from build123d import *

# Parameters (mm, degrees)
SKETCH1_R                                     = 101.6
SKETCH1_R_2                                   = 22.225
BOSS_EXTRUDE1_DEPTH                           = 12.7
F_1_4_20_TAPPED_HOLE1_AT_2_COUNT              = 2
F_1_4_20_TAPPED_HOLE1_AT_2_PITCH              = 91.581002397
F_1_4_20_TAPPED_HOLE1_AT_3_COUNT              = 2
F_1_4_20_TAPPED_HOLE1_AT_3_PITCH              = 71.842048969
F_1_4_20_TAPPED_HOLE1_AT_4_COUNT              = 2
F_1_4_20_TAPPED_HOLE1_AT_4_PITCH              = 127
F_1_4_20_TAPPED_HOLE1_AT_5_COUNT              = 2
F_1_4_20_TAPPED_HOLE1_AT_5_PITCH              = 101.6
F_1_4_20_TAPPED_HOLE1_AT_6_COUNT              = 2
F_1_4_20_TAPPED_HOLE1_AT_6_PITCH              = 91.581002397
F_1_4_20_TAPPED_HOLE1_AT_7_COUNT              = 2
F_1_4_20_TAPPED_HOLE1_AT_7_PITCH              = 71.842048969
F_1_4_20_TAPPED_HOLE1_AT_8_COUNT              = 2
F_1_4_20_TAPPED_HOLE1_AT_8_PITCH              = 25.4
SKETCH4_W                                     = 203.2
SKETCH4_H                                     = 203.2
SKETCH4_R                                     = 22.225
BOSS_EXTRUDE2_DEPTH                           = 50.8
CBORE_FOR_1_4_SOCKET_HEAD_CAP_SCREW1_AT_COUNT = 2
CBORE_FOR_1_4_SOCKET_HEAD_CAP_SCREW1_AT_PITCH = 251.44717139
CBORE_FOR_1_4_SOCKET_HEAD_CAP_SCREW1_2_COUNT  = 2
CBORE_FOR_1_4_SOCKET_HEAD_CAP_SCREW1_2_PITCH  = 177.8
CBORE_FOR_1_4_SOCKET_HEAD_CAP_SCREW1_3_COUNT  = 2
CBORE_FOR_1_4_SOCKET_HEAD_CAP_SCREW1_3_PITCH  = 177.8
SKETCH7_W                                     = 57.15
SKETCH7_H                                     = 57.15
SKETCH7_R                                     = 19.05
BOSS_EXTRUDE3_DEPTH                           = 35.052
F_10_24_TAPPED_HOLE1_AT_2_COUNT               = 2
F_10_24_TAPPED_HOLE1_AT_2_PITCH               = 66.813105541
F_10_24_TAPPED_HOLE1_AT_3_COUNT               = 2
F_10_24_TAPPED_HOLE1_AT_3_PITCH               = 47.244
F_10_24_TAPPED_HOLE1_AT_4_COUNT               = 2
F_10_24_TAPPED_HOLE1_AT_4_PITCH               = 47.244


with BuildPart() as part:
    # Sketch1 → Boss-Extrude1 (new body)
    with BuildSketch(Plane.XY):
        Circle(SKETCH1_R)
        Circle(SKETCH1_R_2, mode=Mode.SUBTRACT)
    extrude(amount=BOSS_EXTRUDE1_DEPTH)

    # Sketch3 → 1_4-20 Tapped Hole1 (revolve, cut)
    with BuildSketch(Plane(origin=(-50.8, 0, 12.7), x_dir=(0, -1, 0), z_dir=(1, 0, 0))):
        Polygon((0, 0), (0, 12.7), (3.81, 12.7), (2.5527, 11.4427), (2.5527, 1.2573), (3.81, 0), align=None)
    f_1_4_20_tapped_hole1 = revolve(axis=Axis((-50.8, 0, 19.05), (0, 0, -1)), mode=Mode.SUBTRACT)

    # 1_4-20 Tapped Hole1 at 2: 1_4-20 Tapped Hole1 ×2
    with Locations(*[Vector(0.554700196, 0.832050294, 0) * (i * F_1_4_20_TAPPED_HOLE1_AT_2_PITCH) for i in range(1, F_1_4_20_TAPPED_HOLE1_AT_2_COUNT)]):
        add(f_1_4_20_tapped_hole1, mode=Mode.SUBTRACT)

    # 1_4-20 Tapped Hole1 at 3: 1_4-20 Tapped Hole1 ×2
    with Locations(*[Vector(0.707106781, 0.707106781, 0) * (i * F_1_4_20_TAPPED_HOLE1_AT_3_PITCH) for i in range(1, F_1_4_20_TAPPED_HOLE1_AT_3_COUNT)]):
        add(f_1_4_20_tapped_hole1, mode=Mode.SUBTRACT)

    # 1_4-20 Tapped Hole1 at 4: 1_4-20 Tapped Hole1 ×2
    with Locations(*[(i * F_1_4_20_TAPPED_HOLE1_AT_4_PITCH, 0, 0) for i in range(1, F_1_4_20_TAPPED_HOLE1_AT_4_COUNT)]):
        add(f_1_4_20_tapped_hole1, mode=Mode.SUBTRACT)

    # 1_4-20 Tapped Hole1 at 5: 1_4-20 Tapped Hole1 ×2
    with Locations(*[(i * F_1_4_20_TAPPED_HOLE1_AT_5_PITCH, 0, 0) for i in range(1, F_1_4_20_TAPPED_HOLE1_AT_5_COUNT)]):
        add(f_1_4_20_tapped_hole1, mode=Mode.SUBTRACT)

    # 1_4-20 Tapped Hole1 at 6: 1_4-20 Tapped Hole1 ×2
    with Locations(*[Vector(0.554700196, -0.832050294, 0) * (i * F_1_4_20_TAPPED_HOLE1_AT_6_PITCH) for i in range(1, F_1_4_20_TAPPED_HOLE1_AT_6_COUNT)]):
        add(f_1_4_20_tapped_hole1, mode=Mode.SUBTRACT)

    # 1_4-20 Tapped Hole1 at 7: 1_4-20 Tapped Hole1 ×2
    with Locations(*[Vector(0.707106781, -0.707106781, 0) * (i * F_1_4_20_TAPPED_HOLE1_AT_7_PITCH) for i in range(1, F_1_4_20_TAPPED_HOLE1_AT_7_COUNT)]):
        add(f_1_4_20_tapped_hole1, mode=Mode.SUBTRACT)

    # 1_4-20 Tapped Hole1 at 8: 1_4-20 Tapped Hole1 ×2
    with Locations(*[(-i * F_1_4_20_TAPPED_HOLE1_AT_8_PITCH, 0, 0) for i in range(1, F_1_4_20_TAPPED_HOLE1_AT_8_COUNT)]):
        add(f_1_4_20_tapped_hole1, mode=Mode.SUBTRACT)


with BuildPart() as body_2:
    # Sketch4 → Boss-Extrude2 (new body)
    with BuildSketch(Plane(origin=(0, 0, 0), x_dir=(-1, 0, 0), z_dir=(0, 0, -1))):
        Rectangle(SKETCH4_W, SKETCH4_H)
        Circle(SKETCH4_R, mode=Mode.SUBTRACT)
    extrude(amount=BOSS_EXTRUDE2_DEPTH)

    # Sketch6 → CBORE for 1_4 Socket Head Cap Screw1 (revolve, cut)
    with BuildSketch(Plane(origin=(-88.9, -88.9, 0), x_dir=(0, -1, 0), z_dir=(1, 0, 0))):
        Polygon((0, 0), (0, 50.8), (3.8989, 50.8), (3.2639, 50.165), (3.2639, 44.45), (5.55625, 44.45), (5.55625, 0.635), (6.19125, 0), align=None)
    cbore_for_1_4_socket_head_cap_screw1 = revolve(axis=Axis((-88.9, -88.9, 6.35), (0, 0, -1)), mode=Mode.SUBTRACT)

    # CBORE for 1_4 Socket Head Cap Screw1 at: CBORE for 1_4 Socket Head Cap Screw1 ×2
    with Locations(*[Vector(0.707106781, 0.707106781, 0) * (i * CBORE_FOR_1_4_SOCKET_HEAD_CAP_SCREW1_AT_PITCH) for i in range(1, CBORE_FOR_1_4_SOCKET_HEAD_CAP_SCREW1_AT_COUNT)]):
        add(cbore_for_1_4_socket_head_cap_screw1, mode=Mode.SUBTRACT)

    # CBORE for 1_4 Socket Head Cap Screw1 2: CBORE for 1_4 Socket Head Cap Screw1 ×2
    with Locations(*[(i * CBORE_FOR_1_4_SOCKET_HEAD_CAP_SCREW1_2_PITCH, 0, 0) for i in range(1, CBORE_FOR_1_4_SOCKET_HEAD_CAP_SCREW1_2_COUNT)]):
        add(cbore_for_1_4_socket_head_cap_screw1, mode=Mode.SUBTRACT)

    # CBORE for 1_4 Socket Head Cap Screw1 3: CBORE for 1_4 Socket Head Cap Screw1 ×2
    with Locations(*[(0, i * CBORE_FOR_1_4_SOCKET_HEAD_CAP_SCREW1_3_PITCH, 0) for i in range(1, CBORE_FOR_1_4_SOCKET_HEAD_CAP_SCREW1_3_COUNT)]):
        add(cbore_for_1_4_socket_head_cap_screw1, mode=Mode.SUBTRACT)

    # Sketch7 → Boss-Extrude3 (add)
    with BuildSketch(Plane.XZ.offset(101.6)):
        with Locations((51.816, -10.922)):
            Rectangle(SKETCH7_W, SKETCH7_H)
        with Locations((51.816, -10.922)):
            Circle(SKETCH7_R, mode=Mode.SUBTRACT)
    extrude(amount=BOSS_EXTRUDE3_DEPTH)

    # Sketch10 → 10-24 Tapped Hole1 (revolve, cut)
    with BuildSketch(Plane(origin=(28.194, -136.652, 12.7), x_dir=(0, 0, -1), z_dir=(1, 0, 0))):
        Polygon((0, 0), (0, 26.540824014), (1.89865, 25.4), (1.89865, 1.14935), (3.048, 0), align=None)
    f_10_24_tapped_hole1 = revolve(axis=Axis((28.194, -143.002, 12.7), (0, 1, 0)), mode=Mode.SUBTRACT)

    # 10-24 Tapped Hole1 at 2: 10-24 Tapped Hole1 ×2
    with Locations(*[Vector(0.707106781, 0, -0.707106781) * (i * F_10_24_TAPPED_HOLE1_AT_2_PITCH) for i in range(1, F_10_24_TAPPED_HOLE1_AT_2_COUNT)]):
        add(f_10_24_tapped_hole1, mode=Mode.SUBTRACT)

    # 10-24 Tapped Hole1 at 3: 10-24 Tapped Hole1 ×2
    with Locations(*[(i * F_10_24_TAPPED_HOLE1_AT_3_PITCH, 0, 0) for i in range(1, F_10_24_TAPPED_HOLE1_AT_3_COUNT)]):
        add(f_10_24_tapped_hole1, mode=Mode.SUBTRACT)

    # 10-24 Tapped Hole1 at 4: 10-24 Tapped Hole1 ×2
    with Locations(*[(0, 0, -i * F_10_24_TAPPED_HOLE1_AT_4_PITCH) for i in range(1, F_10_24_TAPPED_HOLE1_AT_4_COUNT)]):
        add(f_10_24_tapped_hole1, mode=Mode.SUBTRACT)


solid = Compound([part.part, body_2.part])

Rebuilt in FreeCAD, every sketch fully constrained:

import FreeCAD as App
import Part
import Sketcher

V = App.Vector
Q = App.Units.Quantity


def add_polygon(sketch, points):
    """Adds a closed chain of lines whose ends are joined by coincident constraints."""
    first, n = sketch.GeometryCount, len(points)
    for a, b in zip(points, points[1:] + points[:1]):
        sketch.addGeometry(Part.LineSegment(App.Vector(*a, 0), App.Vector(*b, 0)), False)
    for i in range(n):
        sketch.addConstraint(Sketcher.Constraint("Coincident", first + i, 2, first + (i + 1) % n, 1))

doc = App.newDocument("Part")
body = doc.addObject("PartDesign::Body", "Body")

# Sketch on XY plane
sketch1 = body.newObject("Sketcher::SketchObject", "Sketch")
sketch1.AttachmentSupport = (doc.getObject("XY_Plane"), [""])
sketch1.MapMode = "FlatFace"
sketch1.addGeometry([
    Part.Circle(V(0, 0, 0), V(0, 0, 1), 101.6),
    Part.Circle(V(0, 0, 0), V(0, 0, 1), 22.225),
], False)
sketch1.addConstraint([
    Sketcher.Constraint("Coincident", 0, 3, -1, 1),
    Sketcher.Constraint("Coincident", 1, 3, -1, 1),
    Sketcher.Constraint("Diameter", 0, Q("8 in")),
    Sketcher.Constraint("Diameter", 1, Q("1.75 in")),
])
pad1 = body.newObject("PartDesign::Pad", "Pad")
pad1.Profile = sketch1
pad1.Length = Q("0.5 in")

# Sketch on YZ plane
sketch2 = body.newObject("Sketcher::SketchObject", "Sketch001")
sketch2.AttachmentSupport = (doc.getObject("YZ_Plane"), [""])
sketch2.MapMode = "FlatFace"
sketch2.AttachmentOffset = App.Placement(V(0, 0, -2 * 25.4), App.Rotation())
add_polygon(sketch2, [(0, 0), (0, 12.7), (-3.81, 12.7), (-2.5527, 11.4427), (-2.5527, 1.2573), (-3.81, 0)])  # lines 0-5
sketch2.addConstraint([
    Sketcher.Constraint("Vertical", 0),
    Sketcher.Constraint("Horizontal", 1),
    Sketcher.Constraint("Vertical", 3),
    Sketcher.Constraint("Horizontal", 5),
    Sketcher.Constraint("Coincident", 5, 2, -1, 1),
    Sketcher.Constraint("Perpendicular", 2, 4),
    Sketcher.Constraint("Vertical", 1, 2, 4, 2),
    Sketcher.Constraint("Equal", 2, 4),
    Sketcher.Constraint("DistanceY", 0, 1, 0, 2, Q("0.5 in")),
    Sketcher.Constraint("DistanceX", 1, 2, 1, 1, Q("0.15 in")),
    Sketcher.Constraint("DistanceY", 3, 2, 3, 1, Q("0.401 in")),
])
groove = body.newObject("PartDesign::Groove", "Groove")
groove.Profile = sketch2
groove.ReferenceAxis = (sketch2, ["V_Axis"])
groove.Angle = 360
doc.recompute()

datumline = body.newObject("PartDesign::Line", "DatumLine")
datumline.Placement = App.Placement(V(0, 0, 0), App.Rotation(V(0, 0, 1), V(0.554700196, 0.832050294, 0)))
linearpattern = body.newObject("PartDesign::LinearPattern", "LinearPattern")
linearpattern.Originals = [groove]
linearpattern.Direction = (datumline, [""])
linearpattern.Mode = "offset"
linearpattern.Offset = 91.581002
linearpattern.Occurrences = 2
body.Tip = linearpattern
doc.recompute()

datumline2 = body.newObject("PartDesign::Line", "DatumLine001")
datumline2.Placement = App.Placement(V(0, 0, 0), App.Rotation(V(0, 0, 1), V(0.707106781, 0.707106781, 0)))
linearpattern2 = body.newObject("PartDesign::LinearPattern", "LinearPattern001")
linearpattern2.Originals = [groove]
linearpattern2.Direction = (datumline2, [""])
linearpattern2.Mode = "offset"
linearpattern2.Offset = 71.842049
linearpattern2.Occurrences = 2
body.Tip = linearpattern2
doc.recompute()

linearpattern3 = body.newObject("PartDesign::LinearPattern", "LinearPattern002")
linearpattern3.Originals = [groove]
linearpattern3.Direction = (doc.getObject("X_Axis"), [""])
linearpattern3.Mode = "offset"
linearpattern3.Offset = Q("5 in")
linearpattern3.Occurrences = 2
body.Tip = linearpattern3
doc.recompute()

linearpattern4 = body.newObject("PartDesign::LinearPattern", "LinearPattern003")
linearpattern4.Originals = [groove]
linearpattern4.Direction = (doc.getObject("X_Axis"), [""])
linearpattern4.Mode = "offset"
linearpattern4.Offset = Q("4 in")
linearpattern4.Occurrences = 2
body.Tip = linearpattern4
doc.recompute()

datumline3 = body.newObject("PartDesign::Line", "DatumLine002")
datumline3.Placement = App.Placement(V(0, 0, 0), App.Rotation(V(0, 0, 1), V(0.554700196, -0.832050294, 0)))
linearpattern5 = body.newObject("PartDesign::LinearPattern", "LinearPattern004")
linearpattern5.Originals = [groove]
linearpattern5.Direction = (datumline3, [""])
linearpattern5.Mode = "offset"
linearpattern5.Offset = 91.581002
linearpattern5.Occurrences = 2
body.Tip = linearpattern5
doc.recompute()

datumline4 = body.newObject("PartDesign::Line", "DatumLine003")
datumline4.Placement = App.Placement(V(0, 0, 0), App.Rotation(V(0, 0, 1), V(0.707106781, -0.707106781, 0)))
linearpattern6 = body.newObject("PartDesign::LinearPattern", "LinearPattern005")
linearpattern6.Originals = [groove]
linearpattern6.Direction = (datumline4, [""])
linearpattern6.Mode = "offset"
linearpattern6.Offset = 71.842049
linearpattern6.Occurrences = 2
body.Tip = linearpattern6
doc.recompute()

linearpattern7 = body.newObject("PartDesign::LinearPattern", "LinearPattern006")
linearpattern7.Originals = [groove]
linearpattern7.Direction = (doc.getObject("X_Axis"), [""])
linearpattern7.Mode = "offset"
linearpattern7.Offset = Q("1 in")
linearpattern7.Occurrences = 2
linearpattern7.Reversed = True
body.Tip = linearpattern7
body2 = doc.addObject("PartDesign::Body", "Body001")

# Sketch on XY plane
sketch3 = body2.newObject("Sketcher::SketchObject", "Sketch002")
sketch3.AttachmentSupport = (doc.getObject("XY_Plane001"), [""])
sketch3.MapMode = "FlatFace"
add_polygon(sketch3, [(101.6, 101.6), (101.6, -101.6), (-101.6, -101.6), (-101.6, 101.6)])  # lines 0-3
sketch3.addGeometry(Part.Circle(V(0, 0, 0), V(0, 0, 1), 22.225), False)  # 4
sketch3.addConstraint([
    Sketcher.Constraint("Vertical", 0),
    Sketcher.Constraint("Horizontal", 1),
    Sketcher.Constraint("Vertical", 2),
    Sketcher.Constraint("Horizontal", 3),
    Sketcher.Constraint("Coincident", 4, 3, -1, 1),
    Sketcher.Constraint("Symmetric", 0, 2, 2, 2, -1, 1),
    Sketcher.Constraint("Equal", 3, 0),
    Sketcher.Constraint("Diameter", 4, Q("1.75 in")),
    Sketcher.Constraint("DistanceX", 1, 2, 1, 1, Q("8 in")),
])
pad2 = body2.newObject("PartDesign::Pad", "Pad001")
pad2.Profile = sketch3
pad2.Length = Q("2 in")
pad2.Reversed = True

# Sketch on YZ plane
sketch4 = body2.newObject("Sketcher::SketchObject", "Sketch003")
sketch4.AttachmentSupport = (doc.getObject("YZ_Plane001"), [""])
sketch4.MapMode = "FlatFace"
sketch4.AttachmentOffset = App.Placement(V(0, 0, -3.5 * 25.4), App.Rotation())
add_polygon(sketch4, [(-88.9, -50.8), (-88.9, 0), (-95.09125, 0), (-94.45625, -0.635), (-94.45625, -44.45), (-92.1639, -44.45), (-92.1639, -50.165), (-92.7989, -50.8)])  # lines 0-7
sketch4.addGeometry(Part.LineSegment(V(-88.9, 0, 0), V(-88.9, -50.8, 0)), True)  # axis
sketch4.addConstraint([
    Sketcher.Constraint("Vertical", 0),
    Sketcher.Constraint("Horizontal", 1),
    Sketcher.Constraint("Vertical", 3),
    Sketcher.Constraint("Horizontal", 4),
    Sketcher.Constraint("Vertical", 5),
    Sketcher.Constraint("Horizontal", 7),
    Sketcher.Constraint("Vertical", 8),
    Sketcher.Constraint("Coincident", 8, 1, 0, 2),
    Sketcher.Constraint("PointOnObject", 0, 2, -1),
    Sketcher.Constraint("Perpendicular", 2, 6),
    Sketcher.Constraint("Horizontal", 6, 2, 8, 2),
    Sketcher.Constraint("Equal", 2, 6),
    Sketcher.Constraint("DistanceY", 0, 1, 0, 2, Q("2 in")),
    Sketcher.Constraint("Angle", 2, Q("-45 deg")),
    Sketcher.Constraint("DistanceX", 0, 2, -1, 1, Q("3.5 in")),
    Sketcher.Constraint("DistanceY", 3, 2, 3, 1, Q("1.725 in")),
    Sketcher.Constraint("DistanceY", 5, 2, 5, 1, Q("0.225 in")),
    Sketcher.Constraint("DistanceX", 7, 1, 7, 2, Q("0.1535 in")),
    Sketcher.Constraint("DistanceX", 2, 2, -1, 1, Q("3.71875 in")),
])
groove2 = body2.newObject("PartDesign::Groove", "Groove001")
groove2.Profile = sketch4
groove2.ReferenceAxis = (sketch4, ["Axis0"])
groove2.Angle = 360
doc.recompute()

datumline5 = body2.newObject("PartDesign::Line", "DatumLine004")
datumline5.Placement = App.Placement(V(0, 0, 0), App.Rotation(V(0, 0, 1), V(0.707106781, 0.707106781, 0)))
linearpattern8 = body2.newObject("PartDesign::LinearPattern", "LinearPattern007")
linearpattern8.Originals = [groove2]
linearpattern8.Direction = (datumline5, [""])
linearpattern8.Mode = "offset"
linearpattern8.Offset = 251.447171
linearpattern8.Occurrences = 2
body2.Tip = linearpattern8
doc.recompute()

linearpattern9 = body2.newObject("PartDesign::LinearPattern", "LinearPattern008")
linearpattern9.Originals = [groove2]
linearpattern9.Direction = (doc.getObject("X_Axis001"), [""])
linearpattern9.Mode = "offset"
linearpattern9.Offset = Q("7 in")
linearpattern9.Occurrences = 2
body2.Tip = linearpattern9
doc.recompute()

linearpattern10 = body2.newObject("PartDesign::LinearPattern", "LinearPattern009")
linearpattern10.Originals = [groove2]
linearpattern10.Direction = (doc.getObject("Y_Axis001"), [""])
linearpattern10.Mode = "offset"
linearpattern10.Offset = Q("7 in")
linearpattern10.Occurrences = 2
body2.Tip = linearpattern10

# Sketch on XZ plane
sketch5 = body2.newObject("Sketcher::SketchObject", "Sketch004")
sketch5.AttachmentSupport = (doc.getObject("XZ_Plane001"), [""])
sketch5.MapMode = "FlatFace"
sketch5.AttachmentOffset = App.Placement(V(0, 0, 4 * 25.4), App.Rotation())
add_polygon(sketch5, [(23.241, 17.653), (23.241, -39.497), (80.391, -39.497), (80.391, 17.653)])  # lines 0-3
sketch5.addGeometry(Part.Circle(V(51.816, -10.922, 0), V(0, 0, 1), 19.05), False)  # 4
sketch5.addConstraint([
    Sketcher.Constraint("Vertical", 0),
    Sketcher.Constraint("Horizontal", 1),
    Sketcher.Constraint("Vertical", 2),
    Sketcher.Constraint("Horizontal", 3),
    Sketcher.Constraint("Equal", 3, 0),
    Sketcher.Constraint("Diameter", 4, Q("1.5 in")),
    Sketcher.Constraint("DistanceX", 1, 1, 1, 2, Q("2.25 in")),
    Sketcher.Constraint("DistanceX", -1, 1, 4, 3, Q("2.04 in")),
    Sketcher.Constraint("DistanceY", 4, 3, -1, 1, Q("0.43 in")),
    Sketcher.Constraint("DistanceX", -1, 1, 0, 2, Q("0.915 in")),
    Sketcher.Constraint("DistanceY", 0, 2, -1, 1, Q("1.555 in")),
])
pad3 = body2.newObject("PartDesign::Pad", "Pad002")
pad3.Profile = sketch5
pad3.Length = Q("1.38 in")

# Sketch on YZ plane
sketch6 = body2.newObject("Sketcher::SketchObject", "Sketch005")
sketch6.AttachmentSupport = (doc.getObject("YZ_Plane001"), [""])
sketch6.MapMode = "FlatFace"
sketch6.AttachmentOffset = App.Placement(V(0, 0, 1.11 * 25.4), App.Rotation())
add_polygon(sketch6, [(-110.111176, 12.7), (-136.652, 12.7), (-136.652, 9.652), (-135.50265, 10.80135), (-111.252, 10.80135)])  # lines 0-4
sketch6.addGeometry(Part.LineSegment(V(-136.652, 12.7, 0), V(-110.111176, 12.7, 0)), True)  # axis
sketch6.addConstraint([
    Sketcher.Constraint("Horizontal", 0),
    Sketcher.Constraint("Vertical", 1),
    Sketcher.Constraint("Horizontal", 3),
    Sketcher.Constraint("Horizontal", 5),
    Sketcher.Constraint("Coincident", 5, 1, 0, 2),
    Sketcher.Constraint("Equal", 0, 5),
    Sketcher.Constraint("Angle", 2, Q("45 deg")),
    Sketcher.Constraint("Angle", 4, Q("59 deg")),
    Sketcher.Constraint("DistanceX", 1, 2, 3, 2, Q("1 in")),
    Sketcher.Constraint("DistanceY", 1, 2, 1, 1, Q("0.12 in")),
    Sketcher.Constraint("DistanceY", -1, 1, 0, 2, Q("0.5 in")),
    Sketcher.Constraint("DistanceX", 0, 2, -1, 1, Q("5.38 in")),
    Sketcher.Constraint("DistanceX", 3, 1, 3, 2, Q("24.25065 mm")),
])
groove3 = body2.newObject("PartDesign::Groove", "Groove002")
groove3.Profile = sketch6
groove3.ReferenceAxis = (sketch6, ["Axis0"])
groove3.Angle = 360
doc.recompute()

datumline6 = body2.newObject("PartDesign::Line", "DatumLine005")
datumline6.Placement = App.Placement(V(0, 0, 0), App.Rotation(V(0, 0, 1), V(0.707106781, 0, -0.707106781)))
linearpattern11 = body2.newObject("PartDesign::LinearPattern", "LinearPattern010")
linearpattern11.Originals = [groove3]
linearpattern11.Direction = (datumline6, [""])
linearpattern11.Mode = "offset"
linearpattern11.Offset = 66.813106
linearpattern11.Occurrences = 2
body2.Tip = linearpattern11
doc.recompute()

linearpattern12 = body2.newObject("PartDesign::LinearPattern", "LinearPattern011")
linearpattern12.Originals = [groove3]
linearpattern12.Direction = (doc.getObject("X_Axis001"), [""])
linearpattern12.Mode = "offset"
linearpattern12.Offset = Q("1.86 in")
linearpattern12.Occurrences = 2
body2.Tip = linearpattern12
doc.recompute()

linearpattern13 = body2.newObject("PartDesign::LinearPattern", "LinearPattern012")
linearpattern13.Originals = [groove3]
linearpattern13.Direction = (doc.getObject("Z_Axis001"), [""])
linearpattern13.Mode = "offset"
linearpattern13.Offset = Q("1.86 in")
linearpattern13.Occurrences = 2
linearpattern13.Reversed = True
body2.Tip = linearpattern13

doc.recompute()
